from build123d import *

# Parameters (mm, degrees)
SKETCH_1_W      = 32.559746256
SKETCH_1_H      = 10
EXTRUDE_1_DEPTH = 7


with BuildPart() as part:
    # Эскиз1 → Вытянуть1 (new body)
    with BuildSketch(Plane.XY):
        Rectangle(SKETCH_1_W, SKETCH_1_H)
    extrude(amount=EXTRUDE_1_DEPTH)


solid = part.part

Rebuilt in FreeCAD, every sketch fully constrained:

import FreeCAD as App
import Part
import Sketcher
from FreeCAD import Vector

doc = App.newDocument("Part")
body = doc.addObject("PartDesign::Body", "Body")

# Sketch on XY plane
sketch1 = body.newObject("Sketcher::SketchObject", "Sketch")
sketch1.AttachmentSupport = (doc.getObject("XY_Plane"), [""])
sketch1.MapMode = "FlatFace"
sketch1.addGeometry(Part.LineSegment(Vector(-16.279873, 5, 0), Vector(-16.279873, -5, 0)), False)
sketch1.addGeometry(Part.LineSegment(Vector(-16.279873, -5, 0), Vector(16.279873, -5, 0)), False)
sketch1.addGeometry(Part.LineSegment(Vector(16.279873, -5, 0), Vector(16.279873, 5, 0)), False)
sketch1.addGeometry(Part.LineSegment(Vector(16.279873, 5, 0), Vector(-16.279873, 5, 0)), False)
sketch1.addConstraint(Sketcher.Constraint("Coincident", 0, 2, 1, 1))
sketch1.addConstraint(Sketcher.Constraint("Coincident", 1, 2, 2, 1))
sketch1.addConstraint(Sketcher.Constraint("Coincident", 2, 2, 3, 1))
sketch1.addConstraint(Sketcher.Constraint("Coincident", 3, 2, 0, 1))
sketch1.addConstraint(Sketcher.Constraint("Vertical", 0))
sketch1.addConstraint(Sketcher.Constraint("Horizontal", 1))
sketch1.addConstraint(Sketcher.Constraint("Vertical", 2))
sketch1.addConstraint(Sketcher.Constraint("Horizontal", 3))
sketch1.addConstraint(Sketcher.Constraint("Symmetric", 0, 2, 2, 2, -1, 1))
sketch1.addConstraint(Sketcher.Constraint("DistanceY", 0, 2, 0, 1, 10.0))
sketch1.addConstraint(Sketcher.Constraint("DistanceX", 1, 1, 1, 2, 32.559746))
pad1 = body.newObject("PartDesign::Pad", "Pad")
pad1.Profile = sketch1
pad1.Length = 7

doc.recompute()
